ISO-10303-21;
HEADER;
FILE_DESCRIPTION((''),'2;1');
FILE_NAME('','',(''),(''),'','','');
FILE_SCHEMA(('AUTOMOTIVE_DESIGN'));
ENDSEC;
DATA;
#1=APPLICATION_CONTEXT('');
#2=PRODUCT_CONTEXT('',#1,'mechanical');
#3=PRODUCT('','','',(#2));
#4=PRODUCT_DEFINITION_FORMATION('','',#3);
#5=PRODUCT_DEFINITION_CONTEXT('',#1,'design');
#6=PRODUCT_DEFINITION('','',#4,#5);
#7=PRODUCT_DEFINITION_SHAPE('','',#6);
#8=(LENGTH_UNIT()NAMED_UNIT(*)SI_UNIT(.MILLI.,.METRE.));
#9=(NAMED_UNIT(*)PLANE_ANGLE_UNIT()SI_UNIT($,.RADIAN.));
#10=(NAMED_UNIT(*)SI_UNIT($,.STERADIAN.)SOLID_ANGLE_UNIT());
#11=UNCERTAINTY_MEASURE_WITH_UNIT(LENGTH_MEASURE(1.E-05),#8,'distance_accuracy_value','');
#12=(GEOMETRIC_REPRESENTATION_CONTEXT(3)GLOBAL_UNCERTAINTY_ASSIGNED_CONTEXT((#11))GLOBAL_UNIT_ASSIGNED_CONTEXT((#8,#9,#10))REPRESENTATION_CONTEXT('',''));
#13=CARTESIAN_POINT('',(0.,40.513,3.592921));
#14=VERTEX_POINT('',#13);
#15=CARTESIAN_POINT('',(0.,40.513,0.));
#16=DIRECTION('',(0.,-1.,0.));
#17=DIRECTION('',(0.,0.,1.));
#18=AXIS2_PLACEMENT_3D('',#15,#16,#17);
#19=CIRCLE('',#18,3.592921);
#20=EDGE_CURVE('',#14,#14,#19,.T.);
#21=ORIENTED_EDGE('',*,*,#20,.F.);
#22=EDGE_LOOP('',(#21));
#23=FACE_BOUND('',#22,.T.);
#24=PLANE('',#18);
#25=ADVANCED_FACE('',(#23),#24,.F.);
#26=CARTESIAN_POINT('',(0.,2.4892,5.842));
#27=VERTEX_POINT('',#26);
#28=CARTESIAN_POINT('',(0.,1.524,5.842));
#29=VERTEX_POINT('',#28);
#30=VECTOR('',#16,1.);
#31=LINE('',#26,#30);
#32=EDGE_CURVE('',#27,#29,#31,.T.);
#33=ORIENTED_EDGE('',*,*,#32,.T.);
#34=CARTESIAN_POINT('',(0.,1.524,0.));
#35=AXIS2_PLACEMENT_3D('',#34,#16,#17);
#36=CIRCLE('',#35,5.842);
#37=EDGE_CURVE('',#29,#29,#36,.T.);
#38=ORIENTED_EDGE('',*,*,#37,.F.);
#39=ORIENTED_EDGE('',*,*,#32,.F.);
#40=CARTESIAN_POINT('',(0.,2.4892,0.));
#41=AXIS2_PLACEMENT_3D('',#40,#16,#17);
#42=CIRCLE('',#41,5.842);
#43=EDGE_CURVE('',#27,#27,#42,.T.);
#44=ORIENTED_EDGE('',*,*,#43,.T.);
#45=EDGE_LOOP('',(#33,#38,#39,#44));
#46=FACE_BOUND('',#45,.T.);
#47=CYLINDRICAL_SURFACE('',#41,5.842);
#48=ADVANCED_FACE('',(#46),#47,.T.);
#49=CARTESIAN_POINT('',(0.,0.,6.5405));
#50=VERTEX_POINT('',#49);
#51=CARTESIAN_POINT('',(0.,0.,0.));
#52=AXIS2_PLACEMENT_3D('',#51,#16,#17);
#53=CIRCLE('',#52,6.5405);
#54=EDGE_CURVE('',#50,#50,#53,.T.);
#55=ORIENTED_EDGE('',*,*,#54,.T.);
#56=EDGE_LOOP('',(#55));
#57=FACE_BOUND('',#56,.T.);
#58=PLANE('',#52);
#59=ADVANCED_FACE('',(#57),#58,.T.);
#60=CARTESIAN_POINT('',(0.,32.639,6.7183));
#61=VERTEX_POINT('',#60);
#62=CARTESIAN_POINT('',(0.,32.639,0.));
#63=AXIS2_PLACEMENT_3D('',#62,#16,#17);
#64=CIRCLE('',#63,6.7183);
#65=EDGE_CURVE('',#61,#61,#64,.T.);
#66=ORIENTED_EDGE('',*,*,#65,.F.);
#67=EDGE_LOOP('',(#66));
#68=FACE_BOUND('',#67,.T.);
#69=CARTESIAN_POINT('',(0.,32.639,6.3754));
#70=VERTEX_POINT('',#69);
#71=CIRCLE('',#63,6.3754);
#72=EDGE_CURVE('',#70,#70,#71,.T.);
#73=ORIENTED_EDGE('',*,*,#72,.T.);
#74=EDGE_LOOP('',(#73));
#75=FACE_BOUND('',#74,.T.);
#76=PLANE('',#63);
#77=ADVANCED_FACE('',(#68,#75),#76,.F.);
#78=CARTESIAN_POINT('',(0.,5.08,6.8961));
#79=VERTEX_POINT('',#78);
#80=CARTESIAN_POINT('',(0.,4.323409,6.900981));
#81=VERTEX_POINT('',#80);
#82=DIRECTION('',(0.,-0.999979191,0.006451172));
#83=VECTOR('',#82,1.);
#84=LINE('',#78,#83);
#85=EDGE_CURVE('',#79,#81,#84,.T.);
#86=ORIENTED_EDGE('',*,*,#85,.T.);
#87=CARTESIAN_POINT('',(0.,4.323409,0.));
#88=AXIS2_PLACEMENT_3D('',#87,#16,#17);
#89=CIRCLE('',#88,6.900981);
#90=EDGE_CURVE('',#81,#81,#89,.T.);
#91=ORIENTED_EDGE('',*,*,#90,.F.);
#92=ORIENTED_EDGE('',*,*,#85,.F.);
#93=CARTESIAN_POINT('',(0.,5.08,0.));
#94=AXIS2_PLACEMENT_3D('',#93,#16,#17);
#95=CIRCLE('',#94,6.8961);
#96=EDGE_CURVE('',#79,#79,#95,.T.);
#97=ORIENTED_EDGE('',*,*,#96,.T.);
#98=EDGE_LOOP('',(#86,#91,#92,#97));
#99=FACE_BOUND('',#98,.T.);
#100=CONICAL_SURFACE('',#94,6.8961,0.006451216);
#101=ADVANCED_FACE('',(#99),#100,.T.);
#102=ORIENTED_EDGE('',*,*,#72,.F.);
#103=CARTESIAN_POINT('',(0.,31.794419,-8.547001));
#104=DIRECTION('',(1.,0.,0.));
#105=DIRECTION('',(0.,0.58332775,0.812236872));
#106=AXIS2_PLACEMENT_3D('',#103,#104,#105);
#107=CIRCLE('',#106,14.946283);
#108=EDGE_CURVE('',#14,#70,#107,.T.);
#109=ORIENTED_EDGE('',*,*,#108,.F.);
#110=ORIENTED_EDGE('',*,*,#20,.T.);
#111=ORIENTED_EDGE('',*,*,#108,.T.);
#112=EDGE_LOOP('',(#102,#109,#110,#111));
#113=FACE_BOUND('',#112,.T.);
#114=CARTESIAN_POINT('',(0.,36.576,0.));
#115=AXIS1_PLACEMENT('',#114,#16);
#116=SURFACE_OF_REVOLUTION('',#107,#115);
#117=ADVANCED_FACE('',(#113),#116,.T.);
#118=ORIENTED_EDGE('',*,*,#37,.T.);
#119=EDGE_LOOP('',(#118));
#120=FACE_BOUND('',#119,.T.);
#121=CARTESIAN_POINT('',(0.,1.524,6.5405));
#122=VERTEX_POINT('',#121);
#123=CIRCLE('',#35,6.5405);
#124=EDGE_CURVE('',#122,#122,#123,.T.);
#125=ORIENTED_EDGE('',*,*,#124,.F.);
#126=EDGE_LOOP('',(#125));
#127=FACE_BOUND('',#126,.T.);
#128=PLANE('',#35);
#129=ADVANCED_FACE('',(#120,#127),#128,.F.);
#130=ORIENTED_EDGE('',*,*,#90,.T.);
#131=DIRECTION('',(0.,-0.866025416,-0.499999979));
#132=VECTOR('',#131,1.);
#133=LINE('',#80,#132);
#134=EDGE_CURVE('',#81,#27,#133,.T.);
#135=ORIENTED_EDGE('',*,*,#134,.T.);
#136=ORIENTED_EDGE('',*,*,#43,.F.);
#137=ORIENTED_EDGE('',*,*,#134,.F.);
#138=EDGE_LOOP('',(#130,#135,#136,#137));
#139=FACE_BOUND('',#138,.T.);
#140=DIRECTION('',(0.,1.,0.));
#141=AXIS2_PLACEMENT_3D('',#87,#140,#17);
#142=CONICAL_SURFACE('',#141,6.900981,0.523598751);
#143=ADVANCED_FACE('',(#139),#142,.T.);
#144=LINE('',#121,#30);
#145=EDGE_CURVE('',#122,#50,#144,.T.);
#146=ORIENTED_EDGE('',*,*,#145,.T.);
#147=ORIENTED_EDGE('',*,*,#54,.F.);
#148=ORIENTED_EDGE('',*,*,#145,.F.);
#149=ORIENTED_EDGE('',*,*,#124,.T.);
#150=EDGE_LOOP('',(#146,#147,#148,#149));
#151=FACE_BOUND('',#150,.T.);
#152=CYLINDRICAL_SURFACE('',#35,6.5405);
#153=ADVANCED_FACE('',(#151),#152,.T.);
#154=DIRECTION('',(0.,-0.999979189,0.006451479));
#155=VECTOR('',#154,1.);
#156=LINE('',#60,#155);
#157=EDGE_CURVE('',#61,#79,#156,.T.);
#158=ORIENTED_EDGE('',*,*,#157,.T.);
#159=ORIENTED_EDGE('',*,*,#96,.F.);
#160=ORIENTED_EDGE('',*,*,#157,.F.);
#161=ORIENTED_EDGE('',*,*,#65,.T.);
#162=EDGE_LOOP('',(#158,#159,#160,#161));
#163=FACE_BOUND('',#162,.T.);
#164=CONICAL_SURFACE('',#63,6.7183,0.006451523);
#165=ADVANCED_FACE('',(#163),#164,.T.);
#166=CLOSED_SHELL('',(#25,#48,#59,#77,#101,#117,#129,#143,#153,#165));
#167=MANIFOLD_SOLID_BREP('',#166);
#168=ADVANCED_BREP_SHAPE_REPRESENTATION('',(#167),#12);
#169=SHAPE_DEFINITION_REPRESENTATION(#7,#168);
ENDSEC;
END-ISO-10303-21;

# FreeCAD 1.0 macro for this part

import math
import FreeCAD as App
import Part
import Sketcher

V = App.Vector
Q = App.Units.Quantity

doc = App.newDocument("Part")
body = doc.addObject("PartDesign::Body", "Body")

# Sketch on YZ plane
sketch1 = body.newObject("Sketcher::SketchObject", "Sketch")
sketch1.AttachmentSupport = (doc.getObject("YZ_Plane"), [""])
sketch1.MapMode = "FlatFace"
sketch1.addGeometry([
    Part.LineSegment(V(0, 6.5405, 0), V(0, 0, 0)),  # 0
    Part.LineSegment(V(0, 0, 0), V(32.639, 0, 0)),  # 1
    Part.LineSegment(V(32.639, 0, 0), V(32.639, 6.7183, 0)),  # 2
    Part.LineSegment(V(32.639, 6.7183, 0), V(5.08, 6.8961, 0)),  # 3
    Part.LineSegment(V(5.08, 6.8961, 0), V(4.323409, 6.900981, 0)),  # 4
    Part.LineSegment(V(4.323409, 6.900981, 0), V(2.4892, 5.842, 0)),  # 5
    Part.LineSegment(V(2.4892, 5.842, 0), V(1.524, 5.842, 0)),  # 6
    Part.LineSegment(V(1.524, 5.842, 0), V(1.524, 6.5405, 0)),  # 7
    Part.LineSegment(V(1.524, 6.5405, 0), V(0, 6.5405, 0)),  # 8
], False)
sketch1.addConstraint([
    Sketcher.Constraint("Coincident", 0, 2, 1, 1),
    Sketcher.Constraint("Coincident", 1, 2, 2, 1),
    Sketcher.Constraint("Coincident", 2, 2, 3, 1),
    Sketcher.Constraint("Coincident", 3, 2, 4, 1),
    Sketcher.Constraint("Coincident", 4, 2, 5, 1),
    Sketcher.Constraint("Coincident", 5, 2, 6, 1),
    Sketcher.Constraint("Coincident", 6, 2, 7, 1),
    Sketcher.Constraint("Coincident", 7, 2, 8, 1),
    Sketcher.Constraint("Coincident", 8, 2, 0, 1),
    Sketcher.Constraint("Vertical", 0),
    Sketcher.Constraint("Horizontal", 1),
    Sketcher.Constraint("Vertical", 2),
    Sketcher.Constraint("Horizontal", 6),
    Sketcher.Constraint("Vertical", 7),
    Sketcher.Constraint("Horizontal", 8),
    Sketcher.Constraint("Coincident", 0, 2, -1, 1),
    Sketcher.Constraint("Parallel", 3, 4),
    Sketcher.Constraint("Angle", 5, Q("-150.000001 deg")),
    Sketcher.Constraint("DistanceX", 8, 2, 8, 1, Q("0.06 in")),
    Sketcher.Constraint("DistanceX", -1, 1, 3, 2, Q("0.2 in")),
    Sketcher.Constraint("DistanceX", 1, 1, 1, 2, Q("1.285 in")),
    Sketcher.Constraint("DistanceX", 6, 2, 6, 1, Q("0.038 in")),
    Sketcher.Constraint("DistanceY", -1, 1, 5, 2, Q("0.23 in")),
    Sketcher.Constraint("DistanceY", 0, 2, 0, 1, Q("0.2575 in")),
    Sketcher.Constraint("DistanceY", 2, 1, 2, 2, Q("0.2645 in")),
    Sketcher.Constraint("DistanceY", 2, 2, 3, 2, Q("0.007 in")),
])
revolution = body.newObject("PartDesign::Revolution", "Revolution")
revolution.Profile = sketch1
revolution.ReferenceAxis = (sketch1, ["H_Axis"])
revolution.Angle = 360

# Sketch on YZ plane
sketch2 = body.newObject("Sketcher::SketchObject", "Sketch001")
sketch2.AttachmentSupport = (doc.getObject("YZ_Plane"), [""])
sketch2.MapMode = "FlatFace"
sketch2.addGeometry([
    Part.ArcOfCircle(Part.Circle(V(31.794419, -8.547001, 0), V(0, 0, 1), 14.946283), math.radians(54.315059), math.radians(86.760616)),
    Part.LineSegment(V(32.639, 6.3754, 0), V(32.639, 0, 0)),
    Part.LineSegment(V(32.639, 0, 0), V(40.513, 0, 0)),
    Part.LineSegment(V(40.513, 0, 0), V(40.513, 3.592921, 0)),
], False)
sketch2.addConstraint([
    Sketcher.Constraint("Coincident", 0, 2, 1, 1),
    Sketcher.Constraint("Coincident", 1, 2, 2, 1),
    Sketcher.Constraint("Coincident", 2, 2, 3, 1),
    Sketcher.Constraint("Coincident", 3, 2, 0, 1),
    Sketcher.Constraint("Vertical", 1),
    Sketcher.Constraint("Horizontal", 2),
    Sketcher.Constraint("Vertical", 3),
    Sketcher.Constraint("PointOnObject", 1, 2, -1),
    Sketcher.Constraint("DistanceX", 2, 1, 2, 2, Q("0.31 in")),
    Sketcher.Constraint("DistanceY", 1, 2, 1, 1, Q("0.251 in")),
    Sketcher.Constraint("DistanceX", -1, 1, 0, 2, Q("1.285 in")),
    Sketcher.Constraint("Radius", 0, 14.946283),
    Sketcher.Constraint("DistanceY", 3, 1, 3, 2, 3.592921),
])
revolution2 = body.newObject("PartDesign::Revolution", "Revolution001")
revolution2.Profile = sketch2
revolution2.ReferenceAxis = (sketch2, ["H_Axis"])
revolution2.Angle = 360

doc.recompute()
